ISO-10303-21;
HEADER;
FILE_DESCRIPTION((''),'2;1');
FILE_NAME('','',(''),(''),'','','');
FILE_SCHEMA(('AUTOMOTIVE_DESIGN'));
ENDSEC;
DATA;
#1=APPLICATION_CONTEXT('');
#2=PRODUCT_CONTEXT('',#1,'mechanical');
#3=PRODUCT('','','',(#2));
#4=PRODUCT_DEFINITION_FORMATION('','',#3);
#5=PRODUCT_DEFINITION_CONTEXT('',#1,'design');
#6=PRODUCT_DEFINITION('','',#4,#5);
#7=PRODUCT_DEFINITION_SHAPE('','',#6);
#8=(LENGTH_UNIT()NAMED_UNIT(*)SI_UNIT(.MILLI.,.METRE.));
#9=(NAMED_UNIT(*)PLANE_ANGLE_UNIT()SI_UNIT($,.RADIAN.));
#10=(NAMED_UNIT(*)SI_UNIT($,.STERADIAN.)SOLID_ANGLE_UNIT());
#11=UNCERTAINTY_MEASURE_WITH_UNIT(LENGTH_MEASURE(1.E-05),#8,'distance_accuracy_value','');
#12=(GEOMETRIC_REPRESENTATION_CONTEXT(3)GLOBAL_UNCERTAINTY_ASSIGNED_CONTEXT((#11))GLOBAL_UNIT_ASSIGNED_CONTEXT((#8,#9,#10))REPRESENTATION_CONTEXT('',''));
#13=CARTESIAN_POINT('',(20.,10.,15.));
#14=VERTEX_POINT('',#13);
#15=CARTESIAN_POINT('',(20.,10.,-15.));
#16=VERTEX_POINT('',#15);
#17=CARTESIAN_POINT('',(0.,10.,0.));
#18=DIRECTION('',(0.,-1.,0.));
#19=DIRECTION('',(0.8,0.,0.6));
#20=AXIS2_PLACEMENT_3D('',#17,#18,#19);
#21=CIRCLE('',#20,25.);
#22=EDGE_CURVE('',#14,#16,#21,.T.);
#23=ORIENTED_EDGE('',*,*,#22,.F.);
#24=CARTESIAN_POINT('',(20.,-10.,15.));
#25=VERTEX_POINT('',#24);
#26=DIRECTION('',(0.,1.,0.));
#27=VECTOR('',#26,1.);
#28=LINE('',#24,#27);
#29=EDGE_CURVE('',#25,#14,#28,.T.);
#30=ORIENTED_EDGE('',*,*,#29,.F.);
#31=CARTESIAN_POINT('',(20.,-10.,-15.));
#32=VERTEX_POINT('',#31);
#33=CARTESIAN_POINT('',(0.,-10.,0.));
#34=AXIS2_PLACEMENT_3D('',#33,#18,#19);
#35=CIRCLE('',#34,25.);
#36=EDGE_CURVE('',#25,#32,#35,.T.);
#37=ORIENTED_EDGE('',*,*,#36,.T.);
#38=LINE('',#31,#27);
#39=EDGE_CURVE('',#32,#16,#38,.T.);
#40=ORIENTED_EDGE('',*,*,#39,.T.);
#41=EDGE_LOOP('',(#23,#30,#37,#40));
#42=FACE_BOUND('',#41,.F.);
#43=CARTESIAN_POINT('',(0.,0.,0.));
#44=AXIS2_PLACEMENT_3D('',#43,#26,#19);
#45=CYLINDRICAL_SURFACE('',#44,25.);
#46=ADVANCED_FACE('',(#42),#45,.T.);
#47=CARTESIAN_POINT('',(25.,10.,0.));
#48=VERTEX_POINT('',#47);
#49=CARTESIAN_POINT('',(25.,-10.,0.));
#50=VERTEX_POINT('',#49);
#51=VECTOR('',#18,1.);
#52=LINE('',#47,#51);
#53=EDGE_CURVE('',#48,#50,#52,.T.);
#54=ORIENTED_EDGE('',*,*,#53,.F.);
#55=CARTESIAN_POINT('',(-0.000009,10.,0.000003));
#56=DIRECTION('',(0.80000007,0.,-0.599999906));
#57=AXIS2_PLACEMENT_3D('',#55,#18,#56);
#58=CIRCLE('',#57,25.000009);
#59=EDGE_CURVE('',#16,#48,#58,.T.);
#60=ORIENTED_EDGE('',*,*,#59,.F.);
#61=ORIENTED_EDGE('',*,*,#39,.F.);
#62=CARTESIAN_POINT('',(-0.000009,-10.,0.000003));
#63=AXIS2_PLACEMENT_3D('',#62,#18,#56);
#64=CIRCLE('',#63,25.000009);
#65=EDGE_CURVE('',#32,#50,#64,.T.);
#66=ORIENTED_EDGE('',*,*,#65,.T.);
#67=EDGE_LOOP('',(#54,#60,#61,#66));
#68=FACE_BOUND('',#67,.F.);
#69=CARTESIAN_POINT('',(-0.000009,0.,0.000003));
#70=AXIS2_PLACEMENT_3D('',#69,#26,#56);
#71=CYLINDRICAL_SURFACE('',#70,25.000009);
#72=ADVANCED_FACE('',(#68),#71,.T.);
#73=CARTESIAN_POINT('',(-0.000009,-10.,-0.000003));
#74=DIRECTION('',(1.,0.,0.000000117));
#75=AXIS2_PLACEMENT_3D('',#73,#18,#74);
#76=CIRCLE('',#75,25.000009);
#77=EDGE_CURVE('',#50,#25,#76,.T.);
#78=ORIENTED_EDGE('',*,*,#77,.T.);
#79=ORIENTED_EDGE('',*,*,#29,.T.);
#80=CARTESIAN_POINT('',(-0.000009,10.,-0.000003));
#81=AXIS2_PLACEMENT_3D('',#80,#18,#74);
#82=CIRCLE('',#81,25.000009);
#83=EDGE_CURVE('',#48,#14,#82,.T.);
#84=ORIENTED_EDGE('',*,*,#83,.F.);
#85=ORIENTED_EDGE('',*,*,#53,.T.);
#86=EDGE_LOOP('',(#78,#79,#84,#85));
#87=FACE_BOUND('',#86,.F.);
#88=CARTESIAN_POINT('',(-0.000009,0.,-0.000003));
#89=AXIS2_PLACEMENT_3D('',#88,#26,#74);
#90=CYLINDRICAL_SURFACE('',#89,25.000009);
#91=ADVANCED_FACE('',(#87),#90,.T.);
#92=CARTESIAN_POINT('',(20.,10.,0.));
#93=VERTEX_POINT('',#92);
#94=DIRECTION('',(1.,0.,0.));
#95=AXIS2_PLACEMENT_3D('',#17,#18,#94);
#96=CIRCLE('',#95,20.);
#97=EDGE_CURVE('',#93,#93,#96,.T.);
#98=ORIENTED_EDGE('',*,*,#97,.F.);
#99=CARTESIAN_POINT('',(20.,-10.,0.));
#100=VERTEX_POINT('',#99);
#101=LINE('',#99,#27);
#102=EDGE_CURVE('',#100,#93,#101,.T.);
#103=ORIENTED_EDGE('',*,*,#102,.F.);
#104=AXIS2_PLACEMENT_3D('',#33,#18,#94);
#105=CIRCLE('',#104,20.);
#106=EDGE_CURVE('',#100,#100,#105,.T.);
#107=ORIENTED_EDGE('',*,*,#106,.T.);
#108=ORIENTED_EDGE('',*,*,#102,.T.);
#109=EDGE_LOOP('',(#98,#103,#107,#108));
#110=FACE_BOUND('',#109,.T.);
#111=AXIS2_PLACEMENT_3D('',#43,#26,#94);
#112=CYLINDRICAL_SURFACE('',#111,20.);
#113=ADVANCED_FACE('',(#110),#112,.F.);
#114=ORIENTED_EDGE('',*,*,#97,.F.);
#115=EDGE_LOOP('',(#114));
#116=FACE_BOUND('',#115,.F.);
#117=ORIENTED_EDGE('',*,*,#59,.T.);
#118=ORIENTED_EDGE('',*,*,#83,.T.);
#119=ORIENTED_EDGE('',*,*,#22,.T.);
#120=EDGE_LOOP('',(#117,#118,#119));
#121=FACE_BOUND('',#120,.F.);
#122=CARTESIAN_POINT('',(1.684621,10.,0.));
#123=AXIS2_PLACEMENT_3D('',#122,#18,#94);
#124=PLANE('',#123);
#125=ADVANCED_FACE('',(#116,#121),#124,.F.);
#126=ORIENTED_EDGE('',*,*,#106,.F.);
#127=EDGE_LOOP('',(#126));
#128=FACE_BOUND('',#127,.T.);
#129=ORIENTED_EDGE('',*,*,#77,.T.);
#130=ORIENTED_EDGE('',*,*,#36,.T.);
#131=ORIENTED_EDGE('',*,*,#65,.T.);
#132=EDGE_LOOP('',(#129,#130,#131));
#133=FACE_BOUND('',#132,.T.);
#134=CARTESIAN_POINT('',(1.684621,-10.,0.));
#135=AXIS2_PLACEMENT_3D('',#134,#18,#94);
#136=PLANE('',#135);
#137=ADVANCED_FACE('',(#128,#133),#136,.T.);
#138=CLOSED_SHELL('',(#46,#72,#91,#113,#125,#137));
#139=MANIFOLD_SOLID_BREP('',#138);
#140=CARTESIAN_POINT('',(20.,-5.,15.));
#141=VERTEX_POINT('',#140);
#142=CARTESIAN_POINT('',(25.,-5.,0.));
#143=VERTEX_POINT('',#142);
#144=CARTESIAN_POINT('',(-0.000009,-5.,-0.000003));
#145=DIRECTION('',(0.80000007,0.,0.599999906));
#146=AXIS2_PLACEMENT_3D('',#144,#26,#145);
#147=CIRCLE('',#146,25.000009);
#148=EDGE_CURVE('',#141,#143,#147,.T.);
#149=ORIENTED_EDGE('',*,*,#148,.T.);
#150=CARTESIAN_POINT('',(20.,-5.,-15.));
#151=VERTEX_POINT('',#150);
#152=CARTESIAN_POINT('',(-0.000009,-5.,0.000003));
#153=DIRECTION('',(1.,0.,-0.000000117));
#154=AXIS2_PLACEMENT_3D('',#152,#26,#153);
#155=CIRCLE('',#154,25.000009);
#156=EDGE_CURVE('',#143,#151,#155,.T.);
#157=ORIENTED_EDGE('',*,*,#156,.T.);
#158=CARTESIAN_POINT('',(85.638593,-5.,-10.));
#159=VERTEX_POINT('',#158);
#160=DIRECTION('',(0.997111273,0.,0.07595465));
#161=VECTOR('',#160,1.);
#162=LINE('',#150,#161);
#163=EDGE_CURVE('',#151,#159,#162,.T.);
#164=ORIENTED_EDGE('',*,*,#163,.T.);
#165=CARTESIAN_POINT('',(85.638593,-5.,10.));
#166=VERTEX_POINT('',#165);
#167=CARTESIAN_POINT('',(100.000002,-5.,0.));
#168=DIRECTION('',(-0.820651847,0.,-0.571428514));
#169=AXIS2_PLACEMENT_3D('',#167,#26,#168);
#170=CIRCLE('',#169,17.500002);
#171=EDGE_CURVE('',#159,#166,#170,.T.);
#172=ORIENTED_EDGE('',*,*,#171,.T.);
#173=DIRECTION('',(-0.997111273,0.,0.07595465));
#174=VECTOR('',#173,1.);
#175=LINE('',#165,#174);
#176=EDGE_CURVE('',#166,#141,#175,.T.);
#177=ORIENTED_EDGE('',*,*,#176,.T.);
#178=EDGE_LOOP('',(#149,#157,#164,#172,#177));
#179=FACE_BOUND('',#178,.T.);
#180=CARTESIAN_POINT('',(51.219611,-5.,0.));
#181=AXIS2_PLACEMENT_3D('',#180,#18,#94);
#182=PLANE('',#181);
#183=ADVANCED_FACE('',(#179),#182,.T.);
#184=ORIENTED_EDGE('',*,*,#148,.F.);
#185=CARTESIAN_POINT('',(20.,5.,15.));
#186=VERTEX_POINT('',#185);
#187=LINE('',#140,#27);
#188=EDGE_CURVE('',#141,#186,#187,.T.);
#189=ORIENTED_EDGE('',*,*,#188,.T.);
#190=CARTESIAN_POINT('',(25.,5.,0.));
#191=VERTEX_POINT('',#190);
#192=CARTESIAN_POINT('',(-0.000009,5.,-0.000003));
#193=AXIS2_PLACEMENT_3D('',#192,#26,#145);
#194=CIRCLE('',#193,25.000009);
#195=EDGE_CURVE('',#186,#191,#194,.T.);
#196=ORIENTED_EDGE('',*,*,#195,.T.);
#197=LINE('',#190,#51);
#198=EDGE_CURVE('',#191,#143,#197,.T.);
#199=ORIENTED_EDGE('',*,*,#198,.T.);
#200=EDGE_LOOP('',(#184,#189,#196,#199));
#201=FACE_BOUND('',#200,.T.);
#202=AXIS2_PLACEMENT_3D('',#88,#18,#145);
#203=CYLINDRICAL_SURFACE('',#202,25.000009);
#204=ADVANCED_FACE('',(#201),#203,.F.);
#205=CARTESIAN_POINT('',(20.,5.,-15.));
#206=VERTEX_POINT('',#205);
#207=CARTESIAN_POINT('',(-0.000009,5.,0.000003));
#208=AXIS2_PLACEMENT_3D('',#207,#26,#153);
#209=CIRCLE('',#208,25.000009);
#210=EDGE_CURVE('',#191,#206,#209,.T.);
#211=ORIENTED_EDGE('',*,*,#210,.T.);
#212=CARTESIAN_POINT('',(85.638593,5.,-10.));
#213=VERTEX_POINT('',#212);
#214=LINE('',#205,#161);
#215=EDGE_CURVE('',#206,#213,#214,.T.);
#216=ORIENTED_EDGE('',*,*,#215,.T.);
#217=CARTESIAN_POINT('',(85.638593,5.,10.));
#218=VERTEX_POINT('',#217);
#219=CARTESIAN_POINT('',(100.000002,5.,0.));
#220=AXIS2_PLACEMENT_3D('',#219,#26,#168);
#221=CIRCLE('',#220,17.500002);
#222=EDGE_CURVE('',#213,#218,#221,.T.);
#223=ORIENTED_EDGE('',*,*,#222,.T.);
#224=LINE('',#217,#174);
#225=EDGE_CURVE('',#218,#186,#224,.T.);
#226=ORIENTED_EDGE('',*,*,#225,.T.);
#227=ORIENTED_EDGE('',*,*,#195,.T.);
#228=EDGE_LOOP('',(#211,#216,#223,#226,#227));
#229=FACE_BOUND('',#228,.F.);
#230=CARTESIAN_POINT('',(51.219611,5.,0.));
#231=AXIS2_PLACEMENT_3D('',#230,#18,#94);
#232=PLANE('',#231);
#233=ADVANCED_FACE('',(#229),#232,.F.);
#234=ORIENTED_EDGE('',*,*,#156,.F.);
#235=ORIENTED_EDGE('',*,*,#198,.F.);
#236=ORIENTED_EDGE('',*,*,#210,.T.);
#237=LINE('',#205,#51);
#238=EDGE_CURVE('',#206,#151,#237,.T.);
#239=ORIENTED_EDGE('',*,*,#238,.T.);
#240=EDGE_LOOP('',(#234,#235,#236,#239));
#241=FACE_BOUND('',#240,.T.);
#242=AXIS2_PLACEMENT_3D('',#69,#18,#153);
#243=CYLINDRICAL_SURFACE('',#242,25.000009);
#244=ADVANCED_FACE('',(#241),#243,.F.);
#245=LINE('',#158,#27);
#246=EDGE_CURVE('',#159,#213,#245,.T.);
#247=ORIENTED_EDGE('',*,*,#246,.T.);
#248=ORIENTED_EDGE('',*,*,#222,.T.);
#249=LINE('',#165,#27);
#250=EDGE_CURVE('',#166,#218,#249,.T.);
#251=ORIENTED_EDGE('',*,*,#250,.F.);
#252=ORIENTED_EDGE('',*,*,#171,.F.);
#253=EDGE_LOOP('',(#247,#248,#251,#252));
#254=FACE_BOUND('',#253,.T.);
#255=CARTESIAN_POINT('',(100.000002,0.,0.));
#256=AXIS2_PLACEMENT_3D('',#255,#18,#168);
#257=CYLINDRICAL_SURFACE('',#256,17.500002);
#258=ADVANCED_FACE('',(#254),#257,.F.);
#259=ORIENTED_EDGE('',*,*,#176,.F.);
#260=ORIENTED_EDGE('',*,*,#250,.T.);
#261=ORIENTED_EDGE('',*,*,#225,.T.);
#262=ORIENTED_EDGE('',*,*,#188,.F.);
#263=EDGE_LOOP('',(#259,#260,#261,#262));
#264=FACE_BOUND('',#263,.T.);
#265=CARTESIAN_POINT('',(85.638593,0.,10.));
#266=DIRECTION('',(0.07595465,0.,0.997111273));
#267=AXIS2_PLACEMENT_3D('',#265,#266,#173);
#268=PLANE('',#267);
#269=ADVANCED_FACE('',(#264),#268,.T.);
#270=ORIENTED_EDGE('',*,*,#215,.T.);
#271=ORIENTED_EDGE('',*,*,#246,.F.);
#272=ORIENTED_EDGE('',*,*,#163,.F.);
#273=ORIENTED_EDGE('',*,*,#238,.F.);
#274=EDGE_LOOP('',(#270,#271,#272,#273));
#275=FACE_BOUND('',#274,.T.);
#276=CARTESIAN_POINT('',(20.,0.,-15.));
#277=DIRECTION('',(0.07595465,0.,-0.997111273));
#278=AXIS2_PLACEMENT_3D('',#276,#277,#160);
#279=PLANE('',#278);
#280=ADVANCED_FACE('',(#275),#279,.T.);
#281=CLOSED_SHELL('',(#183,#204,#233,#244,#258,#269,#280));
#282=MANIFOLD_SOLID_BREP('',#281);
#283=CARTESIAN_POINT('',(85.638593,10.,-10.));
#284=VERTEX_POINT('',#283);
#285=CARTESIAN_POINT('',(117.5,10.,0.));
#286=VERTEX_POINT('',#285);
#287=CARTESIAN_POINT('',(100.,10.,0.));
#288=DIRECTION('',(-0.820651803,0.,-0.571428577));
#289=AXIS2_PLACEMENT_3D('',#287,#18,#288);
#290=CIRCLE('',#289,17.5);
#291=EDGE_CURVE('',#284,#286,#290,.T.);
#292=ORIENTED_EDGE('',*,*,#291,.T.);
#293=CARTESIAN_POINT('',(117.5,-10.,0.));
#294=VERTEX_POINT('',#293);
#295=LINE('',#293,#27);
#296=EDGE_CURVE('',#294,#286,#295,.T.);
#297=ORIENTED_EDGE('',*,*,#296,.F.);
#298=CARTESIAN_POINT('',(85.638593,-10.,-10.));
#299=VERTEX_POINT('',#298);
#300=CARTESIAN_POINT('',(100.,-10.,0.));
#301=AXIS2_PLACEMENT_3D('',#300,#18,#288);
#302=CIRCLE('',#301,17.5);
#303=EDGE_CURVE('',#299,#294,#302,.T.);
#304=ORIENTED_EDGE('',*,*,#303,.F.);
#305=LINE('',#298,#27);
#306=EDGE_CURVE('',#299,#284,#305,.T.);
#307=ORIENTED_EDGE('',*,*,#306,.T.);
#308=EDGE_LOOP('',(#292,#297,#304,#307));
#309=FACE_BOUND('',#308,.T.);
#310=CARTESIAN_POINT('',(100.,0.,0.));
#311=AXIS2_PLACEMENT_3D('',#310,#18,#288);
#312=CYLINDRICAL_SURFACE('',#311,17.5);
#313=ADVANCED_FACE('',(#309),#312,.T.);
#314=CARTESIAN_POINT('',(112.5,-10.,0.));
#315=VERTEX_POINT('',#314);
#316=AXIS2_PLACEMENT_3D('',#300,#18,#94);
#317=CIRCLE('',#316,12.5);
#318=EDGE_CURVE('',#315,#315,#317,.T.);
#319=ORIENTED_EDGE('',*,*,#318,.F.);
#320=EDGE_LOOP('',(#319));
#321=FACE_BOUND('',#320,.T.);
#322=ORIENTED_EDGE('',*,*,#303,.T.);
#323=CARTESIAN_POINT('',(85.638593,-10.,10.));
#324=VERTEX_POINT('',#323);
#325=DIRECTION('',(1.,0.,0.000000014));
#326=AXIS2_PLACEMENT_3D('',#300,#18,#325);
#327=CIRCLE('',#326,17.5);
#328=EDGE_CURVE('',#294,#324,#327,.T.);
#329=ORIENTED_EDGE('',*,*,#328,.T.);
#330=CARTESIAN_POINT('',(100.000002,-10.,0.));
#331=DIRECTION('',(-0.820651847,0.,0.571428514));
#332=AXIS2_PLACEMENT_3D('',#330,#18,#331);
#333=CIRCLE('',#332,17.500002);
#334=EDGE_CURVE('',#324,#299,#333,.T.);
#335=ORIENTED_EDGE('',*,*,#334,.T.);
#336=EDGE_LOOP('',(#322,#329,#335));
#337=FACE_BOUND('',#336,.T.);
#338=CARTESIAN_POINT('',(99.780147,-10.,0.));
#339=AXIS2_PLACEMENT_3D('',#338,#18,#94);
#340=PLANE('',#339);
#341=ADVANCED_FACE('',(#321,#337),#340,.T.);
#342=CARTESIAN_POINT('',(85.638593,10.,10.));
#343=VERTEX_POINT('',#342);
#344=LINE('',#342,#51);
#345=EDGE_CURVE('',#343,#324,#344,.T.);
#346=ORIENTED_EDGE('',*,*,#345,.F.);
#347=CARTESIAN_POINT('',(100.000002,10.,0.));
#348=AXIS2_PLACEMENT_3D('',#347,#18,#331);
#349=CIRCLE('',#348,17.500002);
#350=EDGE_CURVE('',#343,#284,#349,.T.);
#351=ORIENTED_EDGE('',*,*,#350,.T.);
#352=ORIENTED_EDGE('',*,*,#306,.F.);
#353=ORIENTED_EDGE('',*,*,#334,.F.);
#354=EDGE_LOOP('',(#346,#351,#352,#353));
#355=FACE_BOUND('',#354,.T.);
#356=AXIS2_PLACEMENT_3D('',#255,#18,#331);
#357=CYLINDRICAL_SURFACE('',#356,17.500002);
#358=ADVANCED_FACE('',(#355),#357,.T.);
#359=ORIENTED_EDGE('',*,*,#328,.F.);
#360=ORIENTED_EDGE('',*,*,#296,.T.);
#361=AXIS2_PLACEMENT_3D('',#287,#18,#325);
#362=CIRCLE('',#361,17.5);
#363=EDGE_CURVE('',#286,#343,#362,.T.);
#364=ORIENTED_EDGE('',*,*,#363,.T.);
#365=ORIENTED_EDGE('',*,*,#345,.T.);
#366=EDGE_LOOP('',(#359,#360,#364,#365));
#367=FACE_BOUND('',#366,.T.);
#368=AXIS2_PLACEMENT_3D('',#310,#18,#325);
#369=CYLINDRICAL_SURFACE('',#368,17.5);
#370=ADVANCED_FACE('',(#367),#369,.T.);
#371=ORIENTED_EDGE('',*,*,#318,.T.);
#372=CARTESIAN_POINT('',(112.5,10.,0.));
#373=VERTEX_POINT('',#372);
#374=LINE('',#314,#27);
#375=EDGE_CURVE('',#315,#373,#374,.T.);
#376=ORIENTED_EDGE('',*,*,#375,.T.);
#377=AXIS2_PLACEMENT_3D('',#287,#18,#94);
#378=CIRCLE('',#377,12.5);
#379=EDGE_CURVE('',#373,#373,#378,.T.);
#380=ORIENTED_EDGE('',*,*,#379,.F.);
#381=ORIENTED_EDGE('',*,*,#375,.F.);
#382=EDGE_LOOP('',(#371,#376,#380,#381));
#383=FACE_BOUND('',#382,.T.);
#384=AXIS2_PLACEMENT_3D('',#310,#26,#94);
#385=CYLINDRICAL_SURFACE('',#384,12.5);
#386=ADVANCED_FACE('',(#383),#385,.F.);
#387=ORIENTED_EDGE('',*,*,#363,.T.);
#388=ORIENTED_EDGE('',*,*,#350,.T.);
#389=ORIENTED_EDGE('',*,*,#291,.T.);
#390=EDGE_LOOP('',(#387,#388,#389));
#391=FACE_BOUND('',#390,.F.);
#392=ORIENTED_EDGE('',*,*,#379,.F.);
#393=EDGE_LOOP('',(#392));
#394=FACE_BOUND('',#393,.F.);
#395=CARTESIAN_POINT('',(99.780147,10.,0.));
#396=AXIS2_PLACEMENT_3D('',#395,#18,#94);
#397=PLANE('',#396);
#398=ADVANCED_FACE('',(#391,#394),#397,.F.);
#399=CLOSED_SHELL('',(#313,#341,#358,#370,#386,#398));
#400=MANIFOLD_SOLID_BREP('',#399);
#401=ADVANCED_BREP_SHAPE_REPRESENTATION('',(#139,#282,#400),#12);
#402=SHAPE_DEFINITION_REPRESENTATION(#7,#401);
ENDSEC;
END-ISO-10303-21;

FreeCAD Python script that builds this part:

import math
import FreeCAD as App
import Part
import Sketcher

doc = App.newDocument("Part")
body = doc.addObject("PartDesign::Body", "Body")
body.AllowCompound = True

sketch1 = body.newObject("Sketcher::SketchObject", "Sketch")
sketch1.AttachmentSupport = (doc.getObject("XZ_Plane"), [""])
sketch1.MapMode = "FlatFace"
sketch1.addGeometry([
    Part.ArcOfCircle(Part.Circle(App.Vector(0, 0, 0), App.Vector(0, 0, 1), 25), math.radians(-37), math.radians(0)),
    Part.ArcOfCircle(Part.Circle(App.Vector(0, 0, 0), App.Vector(0, 0, 1), 25), math.radians(0), math.radians(37)),
    Part.ArcOfCircle(Part.Circle(App.Vector(0, 0, 0), App.Vector(0, 0, 1), 25), math.radians(37), math.radians(323)),
    Part.Circle(App.Vector(0, 0, 0), App.Vector(0, 0, 1), 20),
    Part.ArcOfCircle(Part.Circle(App.Vector(100, 0, 0), App.Vector(0, 0, 1), 18), math.radians(0), math.radians(145)),
    Part.ArcOfCircle(Part.Circle(App.Vector(100, 0, 0), App.Vector(0, 0, 1), 18), math.radians(145), math.radians(215)),
    Part.ArcOfCircle(Part.Circle(App.Vector(100, 0, 0), App.Vector(0, 0, 1), 18), math.radians(-145), math.radians(0)),
    Part.Circle(App.Vector(100, 0, 0), App.Vector(0, 0, 1), 12),
], False)
sketch1.addConstraint([
    Sketcher.Constraint("Tangent", 0, 2, 1, 1),
    Sketcher.Constraint("Tangent", 1, 2, 2, 1),
    Sketcher.Constraint("Tangent", 2, 2, 0, 1),
    Sketcher.Constraint("Tangent", 4, 2, 5, 1),
    Sketcher.Constraint("Tangent", 5, 2, 6, 1),
    Sketcher.Constraint("Tangent", 6, 2, 4, 1),
    Sketcher.Constraint("Coincident", 0, 3, -1, 1),
    Sketcher.Constraint("Coincident", 3, 3, -1, 1),
    Sketcher.Constraint("Coincident", 7, 3, 4, 3),
    Sketcher.Constraint("Symmetric", 4, 2, 5, 2, -1),
    Sketcher.Constraint("PointOnObject", 0, 2, -1),
    Sketcher.Constraint("PointOnObject", 6, 2, -1),
    Sketcher.Constraint("Vertical", 1, 2, 2, 2),
    Sketcher.Constraint("Diameter", 3, 40.0),
    Sketcher.Constraint("Diameter", 7, 25.0),
    Sketcher.Constraint("Radius", 2, 25.0),
    Sketcher.Constraint("Radius", 4, 17.5),
    Sketcher.Constraint("DistanceX", -1, 1, 4, 3, 100.0),
    Sketcher.Constraint("DistanceX", -1, 1, 1, 2, 20.0),
    Sketcher.Constraint("DistanceY", -1, 1, 4, 2, 10.0),
])
pad1 = body.newObject("PartDesign::Pad", "Pad")
pad1.Profile = sketch1
pad1.Length = 20
pad1.Midplane = True
body2 = doc.addObject("PartDesign::Body", "Body001")

sketch2 = body2.newObject("Sketcher::SketchObject", "Sketch001")
sketch2.AttachmentSupport = (doc.getObject("XZ_Plane001"), [""])
sketch2.MapMode = "FlatFace"
sketch2.addGeometry([
    Part.ArcOfCircle(Part.Circle(App.Vector(0, 0, 0), App.Vector(0, 0, 1), 25), math.radians(0), math.radians(37)),
    Part.ArcOfCircle(Part.Circle(App.Vector(0, 0, 0), App.Vector(0, 0, 1), 25), math.radians(-37), math.radians(0)),
    Part.LineSegment(App.Vector(20, -15, 0), App.Vector(86, -10, 0)),
    Part.ArcOfCircle(Part.Circle(App.Vector(100, 0, 0), App.Vector(0, 0, 1), 18), math.radians(145), math.radians(215)),
    Part.LineSegment(App.Vector(86, 10, 0), App.Vector(20, 15, 0)),
], False)
sketch2.addConstraint([
    Sketcher.Constraint("Tangent", 0, 1, 1, 2),
    Sketcher.Constraint("Coincident", 1, 1, 2, 1),
    Sketcher.Constraint("Coincident", 2, 2, 3, 2),
    Sketcher.Constraint("Coincident", 3, 1, 4, 1),
    Sketcher.Constraint("Coincident", 4, 2, 0, 2),
    Sketcher.Constraint("Coincident", 0, 3, -1, 1),
    Sketcher.Constraint("Equal", 0, 1),
    Sketcher.Constraint("Symmetric", 2, 2, 3, 1, -1),
    Sketcher.Constraint("PointOnObject", 0, 1, -1),
    Sketcher.Constraint("Vertical", 1, 1, 4, 2),
    Sketcher.Constraint("Radius", 3, 17.500002),
    Sketcher.Constraint("DistanceX", -1, 1, 3, 3, 100.000002),
    Sketcher.Constraint("DistanceX", -1, 1, 0, 1, 25.0),
    Sketcher.Constraint("DistanceX", -1, 1, 1, 1, 20.0),
    Sketcher.Constraint("DistanceY", 2, 2, -1, 1, 10.0),
])
pad2 = body2.newObject("PartDesign::Pad", "Pad001")
pad2.Profile = sketch2
pad2.Length = 10
pad2.Midplane = True

doc.recompute()
